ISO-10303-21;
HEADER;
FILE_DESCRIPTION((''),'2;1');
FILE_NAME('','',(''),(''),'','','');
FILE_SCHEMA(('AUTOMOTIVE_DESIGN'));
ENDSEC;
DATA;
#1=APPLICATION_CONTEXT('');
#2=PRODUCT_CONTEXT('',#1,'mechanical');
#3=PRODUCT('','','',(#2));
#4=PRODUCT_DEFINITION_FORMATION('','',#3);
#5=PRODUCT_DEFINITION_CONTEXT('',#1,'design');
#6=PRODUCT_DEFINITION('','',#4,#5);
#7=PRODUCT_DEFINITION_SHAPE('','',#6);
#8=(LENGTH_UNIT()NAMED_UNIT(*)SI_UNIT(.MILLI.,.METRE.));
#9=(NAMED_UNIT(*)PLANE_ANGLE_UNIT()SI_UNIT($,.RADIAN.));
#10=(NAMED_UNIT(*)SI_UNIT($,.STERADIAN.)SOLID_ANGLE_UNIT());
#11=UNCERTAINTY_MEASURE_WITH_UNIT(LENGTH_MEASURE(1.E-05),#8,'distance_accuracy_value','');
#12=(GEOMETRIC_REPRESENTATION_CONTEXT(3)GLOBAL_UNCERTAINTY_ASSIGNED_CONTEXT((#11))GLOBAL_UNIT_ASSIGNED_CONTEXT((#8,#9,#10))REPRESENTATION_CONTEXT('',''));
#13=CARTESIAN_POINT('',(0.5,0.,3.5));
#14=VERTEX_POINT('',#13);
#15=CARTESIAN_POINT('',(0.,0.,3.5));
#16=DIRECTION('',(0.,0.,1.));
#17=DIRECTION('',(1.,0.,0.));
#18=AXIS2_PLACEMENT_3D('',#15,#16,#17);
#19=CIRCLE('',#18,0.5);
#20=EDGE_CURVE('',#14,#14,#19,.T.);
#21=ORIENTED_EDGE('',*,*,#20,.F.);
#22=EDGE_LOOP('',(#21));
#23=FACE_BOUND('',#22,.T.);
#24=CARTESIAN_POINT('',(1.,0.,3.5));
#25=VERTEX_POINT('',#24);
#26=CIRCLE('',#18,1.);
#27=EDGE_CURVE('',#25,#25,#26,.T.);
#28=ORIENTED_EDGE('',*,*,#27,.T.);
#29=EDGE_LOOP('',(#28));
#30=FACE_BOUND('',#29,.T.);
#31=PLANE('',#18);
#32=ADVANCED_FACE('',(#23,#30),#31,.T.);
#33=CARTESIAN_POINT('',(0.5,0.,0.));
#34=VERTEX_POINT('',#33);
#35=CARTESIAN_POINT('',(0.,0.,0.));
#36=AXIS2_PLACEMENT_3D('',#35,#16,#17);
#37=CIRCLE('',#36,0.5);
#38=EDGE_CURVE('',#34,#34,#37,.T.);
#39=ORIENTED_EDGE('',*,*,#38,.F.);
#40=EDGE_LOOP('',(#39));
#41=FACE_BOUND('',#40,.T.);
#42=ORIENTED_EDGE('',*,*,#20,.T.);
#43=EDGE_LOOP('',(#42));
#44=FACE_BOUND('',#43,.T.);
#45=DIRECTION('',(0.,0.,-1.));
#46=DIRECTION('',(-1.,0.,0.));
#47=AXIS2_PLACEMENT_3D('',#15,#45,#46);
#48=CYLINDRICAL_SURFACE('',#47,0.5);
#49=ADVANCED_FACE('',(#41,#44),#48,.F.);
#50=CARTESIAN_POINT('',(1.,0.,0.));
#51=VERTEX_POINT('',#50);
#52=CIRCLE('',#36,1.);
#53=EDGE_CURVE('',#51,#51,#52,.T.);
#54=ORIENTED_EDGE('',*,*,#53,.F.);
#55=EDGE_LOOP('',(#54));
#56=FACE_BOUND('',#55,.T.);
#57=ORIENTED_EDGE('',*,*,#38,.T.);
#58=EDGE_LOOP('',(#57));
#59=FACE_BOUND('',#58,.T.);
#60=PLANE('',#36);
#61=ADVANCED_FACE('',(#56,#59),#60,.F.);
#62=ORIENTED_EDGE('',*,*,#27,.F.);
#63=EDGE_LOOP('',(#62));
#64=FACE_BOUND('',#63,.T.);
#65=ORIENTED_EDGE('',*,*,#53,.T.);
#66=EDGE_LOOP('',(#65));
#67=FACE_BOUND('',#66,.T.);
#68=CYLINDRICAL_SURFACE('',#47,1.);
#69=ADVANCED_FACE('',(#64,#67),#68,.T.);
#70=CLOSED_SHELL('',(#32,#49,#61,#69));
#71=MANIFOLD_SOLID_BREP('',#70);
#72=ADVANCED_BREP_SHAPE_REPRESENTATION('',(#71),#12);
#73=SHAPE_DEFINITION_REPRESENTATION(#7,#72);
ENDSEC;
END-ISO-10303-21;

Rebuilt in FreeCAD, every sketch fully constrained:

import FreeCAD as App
import Part
import Sketcher
Q = App.Units.Quantity

doc = App.newDocument("Part")
params = doc.addObject("Spreadsheet::Sheet", "Params")
for row, (alias, value) in enumerate([
    ("sketch1_diameter", "2 mm"),
    ("sketch1_diameter2", "1 mm"),
    ("pad1_length", "3.5 mm"),
], start=1):
    params.set(f"A{row}", alias)
    params.set(f"B{row}", "=" + value)
    params.setAlias(f"B{row}", alias)

body = doc.addObject("PartDesign::Body", "Body")

# Sketch on XY plane
sketch1 = doc.addObject("Sketcher::SketchObject", "Sketch")
body.addObject(sketch1)
sketch1.AttachmentSupport = (doc.XY_Plane, [""])
sketch1.MapMode = "FlatFace"
sketch1.addGeometry(Part.Circle(App.Vector(0, 0, 0), App.Vector(0, 0, 1), 1), False)
sketch1.addGeometry(Part.Circle(App.Vector(0, 0, 0), App.Vector(0, 0, 1), 0.5), False)
sketch1.addConstraint(Sketcher.Constraint("Coincident", 0, 3, -1, 1))
sketch1.addConstraint(Sketcher.Constraint("Coincident", 1, 3, -1, 1))
sketch1.addConstraint(Sketcher.Constraint("Diameter", 0, Q("2 mm")))
sketch1.addConstraint(Sketcher.Constraint("Diameter", 1, Q("1 mm")))
sketch1.setExpression("Constraints[2]", "Params.sketch1_diameter")
sketch1.setExpression("Constraints[3]", "Params.sketch1_diameter2")
pad1 = doc.addObject("PartDesign::Pad", "Pad")
body.addObject(pad1)
pad1.Profile = sketch1
pad1.setExpression("Length", "Params.pad1_length")

doc.recompute()
